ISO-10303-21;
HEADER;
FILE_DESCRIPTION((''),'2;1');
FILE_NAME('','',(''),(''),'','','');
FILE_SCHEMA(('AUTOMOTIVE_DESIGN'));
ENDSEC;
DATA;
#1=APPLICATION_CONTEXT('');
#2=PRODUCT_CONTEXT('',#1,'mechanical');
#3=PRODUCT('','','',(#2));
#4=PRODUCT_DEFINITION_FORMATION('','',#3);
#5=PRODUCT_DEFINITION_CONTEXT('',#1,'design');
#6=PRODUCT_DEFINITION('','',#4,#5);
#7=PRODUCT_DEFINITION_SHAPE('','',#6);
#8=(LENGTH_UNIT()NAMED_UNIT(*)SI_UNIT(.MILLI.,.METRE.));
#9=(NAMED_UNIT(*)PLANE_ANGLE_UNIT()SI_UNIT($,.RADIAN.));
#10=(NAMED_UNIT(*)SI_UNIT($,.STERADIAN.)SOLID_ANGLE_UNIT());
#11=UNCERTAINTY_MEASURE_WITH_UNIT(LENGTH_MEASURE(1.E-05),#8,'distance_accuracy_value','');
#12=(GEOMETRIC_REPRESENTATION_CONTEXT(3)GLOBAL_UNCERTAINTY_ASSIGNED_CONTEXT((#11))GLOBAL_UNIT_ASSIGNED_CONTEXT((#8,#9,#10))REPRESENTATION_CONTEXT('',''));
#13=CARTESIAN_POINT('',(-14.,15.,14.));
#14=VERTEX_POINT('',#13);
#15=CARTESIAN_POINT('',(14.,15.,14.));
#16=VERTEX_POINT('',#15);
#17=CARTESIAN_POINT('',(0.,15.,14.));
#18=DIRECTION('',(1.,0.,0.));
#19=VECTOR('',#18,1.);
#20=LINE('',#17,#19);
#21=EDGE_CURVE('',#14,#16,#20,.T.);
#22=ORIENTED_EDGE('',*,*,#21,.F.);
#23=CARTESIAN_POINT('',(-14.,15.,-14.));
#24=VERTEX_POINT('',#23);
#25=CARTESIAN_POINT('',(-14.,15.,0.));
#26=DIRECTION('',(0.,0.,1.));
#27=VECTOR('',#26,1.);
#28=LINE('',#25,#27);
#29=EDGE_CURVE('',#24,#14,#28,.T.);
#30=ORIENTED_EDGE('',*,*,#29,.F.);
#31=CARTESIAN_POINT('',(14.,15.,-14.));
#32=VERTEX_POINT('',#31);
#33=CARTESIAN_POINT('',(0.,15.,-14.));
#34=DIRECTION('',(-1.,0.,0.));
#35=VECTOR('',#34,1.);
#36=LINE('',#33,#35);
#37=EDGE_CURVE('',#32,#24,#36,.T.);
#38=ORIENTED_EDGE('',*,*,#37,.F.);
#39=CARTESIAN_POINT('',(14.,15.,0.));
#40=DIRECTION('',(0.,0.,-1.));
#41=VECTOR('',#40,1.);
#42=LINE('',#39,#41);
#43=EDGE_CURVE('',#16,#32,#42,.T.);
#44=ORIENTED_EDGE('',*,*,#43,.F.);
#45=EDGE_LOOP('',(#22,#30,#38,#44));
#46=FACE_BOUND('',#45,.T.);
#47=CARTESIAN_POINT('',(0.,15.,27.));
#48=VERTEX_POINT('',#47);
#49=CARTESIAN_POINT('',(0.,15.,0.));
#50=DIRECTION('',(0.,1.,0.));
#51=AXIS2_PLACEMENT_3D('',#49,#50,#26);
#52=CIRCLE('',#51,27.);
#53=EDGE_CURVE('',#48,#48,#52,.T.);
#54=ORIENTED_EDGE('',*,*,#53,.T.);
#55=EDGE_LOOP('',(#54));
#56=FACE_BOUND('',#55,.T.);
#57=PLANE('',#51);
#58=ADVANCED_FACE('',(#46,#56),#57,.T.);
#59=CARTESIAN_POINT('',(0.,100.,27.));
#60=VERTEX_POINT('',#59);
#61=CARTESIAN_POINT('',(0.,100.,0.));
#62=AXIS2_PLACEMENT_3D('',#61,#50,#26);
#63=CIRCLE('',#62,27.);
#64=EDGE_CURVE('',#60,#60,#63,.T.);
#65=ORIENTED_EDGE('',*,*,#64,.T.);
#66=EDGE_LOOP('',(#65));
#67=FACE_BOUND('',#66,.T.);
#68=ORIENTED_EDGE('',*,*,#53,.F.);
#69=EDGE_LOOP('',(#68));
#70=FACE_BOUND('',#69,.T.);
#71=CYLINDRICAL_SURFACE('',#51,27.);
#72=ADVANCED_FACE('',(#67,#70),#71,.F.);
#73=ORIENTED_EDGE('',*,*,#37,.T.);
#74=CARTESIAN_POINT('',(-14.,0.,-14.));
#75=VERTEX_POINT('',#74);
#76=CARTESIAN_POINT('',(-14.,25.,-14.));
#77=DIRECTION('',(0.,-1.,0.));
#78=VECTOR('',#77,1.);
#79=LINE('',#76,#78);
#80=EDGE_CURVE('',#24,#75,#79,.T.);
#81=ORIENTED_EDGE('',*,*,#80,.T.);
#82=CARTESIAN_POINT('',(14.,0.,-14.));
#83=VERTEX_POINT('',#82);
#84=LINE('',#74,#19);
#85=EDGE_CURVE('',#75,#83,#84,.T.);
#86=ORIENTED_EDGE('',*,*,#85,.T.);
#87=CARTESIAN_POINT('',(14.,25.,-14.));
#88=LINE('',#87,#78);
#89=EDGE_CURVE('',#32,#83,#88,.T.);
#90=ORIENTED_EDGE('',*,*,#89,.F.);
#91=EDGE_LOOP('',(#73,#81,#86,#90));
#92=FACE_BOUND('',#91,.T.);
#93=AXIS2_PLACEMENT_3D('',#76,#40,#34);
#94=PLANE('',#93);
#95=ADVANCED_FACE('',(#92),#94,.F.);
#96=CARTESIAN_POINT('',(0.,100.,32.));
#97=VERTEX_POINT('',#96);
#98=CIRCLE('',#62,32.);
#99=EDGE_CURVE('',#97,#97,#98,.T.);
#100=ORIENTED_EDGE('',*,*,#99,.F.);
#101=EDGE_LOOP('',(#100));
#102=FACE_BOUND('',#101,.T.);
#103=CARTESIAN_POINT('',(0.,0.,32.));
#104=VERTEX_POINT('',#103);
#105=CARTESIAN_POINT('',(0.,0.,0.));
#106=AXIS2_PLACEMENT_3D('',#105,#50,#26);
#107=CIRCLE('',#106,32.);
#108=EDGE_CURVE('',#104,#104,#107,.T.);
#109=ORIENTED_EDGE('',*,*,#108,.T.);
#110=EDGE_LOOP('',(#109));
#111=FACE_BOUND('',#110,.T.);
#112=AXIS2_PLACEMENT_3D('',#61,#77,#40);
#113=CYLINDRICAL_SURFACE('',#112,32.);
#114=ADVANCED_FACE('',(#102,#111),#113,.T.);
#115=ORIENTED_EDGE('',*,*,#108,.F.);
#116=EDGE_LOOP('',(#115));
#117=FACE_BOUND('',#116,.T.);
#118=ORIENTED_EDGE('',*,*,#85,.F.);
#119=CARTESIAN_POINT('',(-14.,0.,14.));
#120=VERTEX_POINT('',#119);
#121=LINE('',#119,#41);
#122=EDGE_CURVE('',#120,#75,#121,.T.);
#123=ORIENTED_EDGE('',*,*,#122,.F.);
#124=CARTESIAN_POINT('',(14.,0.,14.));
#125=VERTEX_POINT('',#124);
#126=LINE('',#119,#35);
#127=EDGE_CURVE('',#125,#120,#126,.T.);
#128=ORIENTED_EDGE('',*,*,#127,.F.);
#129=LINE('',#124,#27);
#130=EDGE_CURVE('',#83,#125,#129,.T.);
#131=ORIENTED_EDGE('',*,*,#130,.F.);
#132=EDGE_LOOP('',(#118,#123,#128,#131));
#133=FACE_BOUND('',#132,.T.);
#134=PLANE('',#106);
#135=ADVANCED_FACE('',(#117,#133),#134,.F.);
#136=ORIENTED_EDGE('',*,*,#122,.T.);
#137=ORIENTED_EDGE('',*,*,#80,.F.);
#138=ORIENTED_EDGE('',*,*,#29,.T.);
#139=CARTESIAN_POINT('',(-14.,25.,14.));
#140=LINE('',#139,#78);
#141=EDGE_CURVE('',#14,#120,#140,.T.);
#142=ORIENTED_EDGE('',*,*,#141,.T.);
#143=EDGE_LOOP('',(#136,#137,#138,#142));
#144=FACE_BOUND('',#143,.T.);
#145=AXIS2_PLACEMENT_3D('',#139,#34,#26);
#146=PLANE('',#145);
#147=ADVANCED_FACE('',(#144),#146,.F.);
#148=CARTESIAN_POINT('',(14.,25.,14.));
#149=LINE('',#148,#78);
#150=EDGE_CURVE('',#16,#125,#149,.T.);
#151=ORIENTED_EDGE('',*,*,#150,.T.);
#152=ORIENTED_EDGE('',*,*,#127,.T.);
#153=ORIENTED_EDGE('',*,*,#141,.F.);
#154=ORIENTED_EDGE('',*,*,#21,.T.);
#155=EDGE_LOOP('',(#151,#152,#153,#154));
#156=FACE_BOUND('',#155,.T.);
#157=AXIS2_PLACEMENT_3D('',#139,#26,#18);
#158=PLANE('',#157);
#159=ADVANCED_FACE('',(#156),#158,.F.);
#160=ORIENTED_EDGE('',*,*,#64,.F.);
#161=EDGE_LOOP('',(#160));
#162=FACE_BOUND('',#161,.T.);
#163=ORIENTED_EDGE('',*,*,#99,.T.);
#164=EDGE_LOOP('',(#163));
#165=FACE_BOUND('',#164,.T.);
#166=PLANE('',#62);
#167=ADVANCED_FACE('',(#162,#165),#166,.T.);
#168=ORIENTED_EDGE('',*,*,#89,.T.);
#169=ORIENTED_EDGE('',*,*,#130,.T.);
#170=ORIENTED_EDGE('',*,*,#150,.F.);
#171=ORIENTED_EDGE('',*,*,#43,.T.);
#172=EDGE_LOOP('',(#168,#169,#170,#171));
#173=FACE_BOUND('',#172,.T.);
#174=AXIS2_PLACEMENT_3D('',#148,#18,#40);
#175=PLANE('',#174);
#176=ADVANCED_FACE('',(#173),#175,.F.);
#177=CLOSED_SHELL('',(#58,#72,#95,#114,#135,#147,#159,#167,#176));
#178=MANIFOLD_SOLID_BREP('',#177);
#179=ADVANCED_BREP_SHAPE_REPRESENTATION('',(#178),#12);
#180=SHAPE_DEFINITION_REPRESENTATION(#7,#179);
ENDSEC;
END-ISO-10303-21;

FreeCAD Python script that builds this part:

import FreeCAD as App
import Part
import Sketcher


def add_polygon(sketch, points):
    """Adds a closed chain of lines whose ends are joined by coincident constraints."""
    first, n = sketch.GeometryCount, len(points)
    for a, b in zip(points, points[1:] + points[:1]):
        sketch.addGeometry(Part.LineSegment(App.Vector(*a, 0), App.Vector(*b, 0)), False)
    for i in range(n):
        sketch.addConstraint(Sketcher.Constraint("Coincident", first + i, 2, first + (i + 1) % n, 1))

doc = App.newDocument("Part")
body = doc.addObject("PartDesign::Body", "Body")

# Sketch on XZ plane
sketch1 = doc.addObject("Sketcher::SketchObject", "Sketch")
body.addObject(sketch1)
sketch1.AttachmentSupport = (doc.XZ_Plane, [""])
sketch1.MapMode = "FlatFace"
sketch1.addGeometry(Part.Circle(App.Vector(0, 0, 0), App.Vector(0, 0, 1), 32), False)
sketch1.addConstraint(Sketcher.Constraint("Coincident", 0, 3, -1, 1))
sketch1.addConstraint(Sketcher.Constraint("Diameter", 0, 64.0))
pad1 = doc.addObject("PartDesign::Pad", "Pad")
body.addObject(pad1)
pad1.Profile = sketch1
pad1.Length = 100
pad1.Reversed = True

# Sketch on XZ plane
sketch2 = doc.addObject("Sketcher::SketchObject", "Sketch001")
body.addObject(sketch2)
sketch2.AttachmentSupport = (doc.XZ_Plane, [""])
sketch2.MapMode = "FlatFace"
sketch2.AttachmentOffset = App.Placement(App.Vector(0, 0, -100), App.Rotation())
sketch2.addGeometry(Part.Circle(App.Vector(0, 0, 0), App.Vector(0, 0, 1), 27), False)
sketch2.addConstraint(Sketcher.Constraint("Coincident", 0, 3, -1, 1))
sketch2.addConstraint(Sketcher.Constraint("Diameter", 0, 54.0))
pocket1 = doc.addObject("PartDesign::Pocket", "Pocket")
body.addObject(pocket1)
pocket1.Profile = sketch2
pocket1.Length = 85
pocket1.Reversed = True

# Sketch on XZ plane
sketch3 = doc.addObject("Sketcher::SketchObject", "Sketch002")
body.addObject(sketch3)
sketch3.AttachmentSupport = (doc.XZ_Plane, [""])
sketch3.MapMode = "FlatFace"
add_polygon(sketch3, [(-14, 14), (-14, -14), (14, -14), (14, 14)])  # lines 0-3
sketch3.addConstraint(Sketcher.Constraint("Vertical", 0))
sketch3.addConstraint(Sketcher.Constraint("Horizontal", 1))
sketch3.addConstraint(Sketcher.Constraint("Vertical", 2))
sketch3.addConstraint(Sketcher.Constraint("Horizontal", 3))
sketch3.addConstraint(Sketcher.Constraint("Symmetric", 0, 2, 2, 2, -1, 1))
sketch3.addConstraint(Sketcher.Constraint("Equal", 3, 0))
sketch3.addConstraint(Sketcher.Constraint("DistanceX", 1, 1, 1, 2, 28.0))
pocket2 = doc.addObject("PartDesign::Pocket", "Pocket001")
body.addObject(pocket2)
pocket2.Profile = sketch3
pocket2.Length = 25

doc.recompute()
